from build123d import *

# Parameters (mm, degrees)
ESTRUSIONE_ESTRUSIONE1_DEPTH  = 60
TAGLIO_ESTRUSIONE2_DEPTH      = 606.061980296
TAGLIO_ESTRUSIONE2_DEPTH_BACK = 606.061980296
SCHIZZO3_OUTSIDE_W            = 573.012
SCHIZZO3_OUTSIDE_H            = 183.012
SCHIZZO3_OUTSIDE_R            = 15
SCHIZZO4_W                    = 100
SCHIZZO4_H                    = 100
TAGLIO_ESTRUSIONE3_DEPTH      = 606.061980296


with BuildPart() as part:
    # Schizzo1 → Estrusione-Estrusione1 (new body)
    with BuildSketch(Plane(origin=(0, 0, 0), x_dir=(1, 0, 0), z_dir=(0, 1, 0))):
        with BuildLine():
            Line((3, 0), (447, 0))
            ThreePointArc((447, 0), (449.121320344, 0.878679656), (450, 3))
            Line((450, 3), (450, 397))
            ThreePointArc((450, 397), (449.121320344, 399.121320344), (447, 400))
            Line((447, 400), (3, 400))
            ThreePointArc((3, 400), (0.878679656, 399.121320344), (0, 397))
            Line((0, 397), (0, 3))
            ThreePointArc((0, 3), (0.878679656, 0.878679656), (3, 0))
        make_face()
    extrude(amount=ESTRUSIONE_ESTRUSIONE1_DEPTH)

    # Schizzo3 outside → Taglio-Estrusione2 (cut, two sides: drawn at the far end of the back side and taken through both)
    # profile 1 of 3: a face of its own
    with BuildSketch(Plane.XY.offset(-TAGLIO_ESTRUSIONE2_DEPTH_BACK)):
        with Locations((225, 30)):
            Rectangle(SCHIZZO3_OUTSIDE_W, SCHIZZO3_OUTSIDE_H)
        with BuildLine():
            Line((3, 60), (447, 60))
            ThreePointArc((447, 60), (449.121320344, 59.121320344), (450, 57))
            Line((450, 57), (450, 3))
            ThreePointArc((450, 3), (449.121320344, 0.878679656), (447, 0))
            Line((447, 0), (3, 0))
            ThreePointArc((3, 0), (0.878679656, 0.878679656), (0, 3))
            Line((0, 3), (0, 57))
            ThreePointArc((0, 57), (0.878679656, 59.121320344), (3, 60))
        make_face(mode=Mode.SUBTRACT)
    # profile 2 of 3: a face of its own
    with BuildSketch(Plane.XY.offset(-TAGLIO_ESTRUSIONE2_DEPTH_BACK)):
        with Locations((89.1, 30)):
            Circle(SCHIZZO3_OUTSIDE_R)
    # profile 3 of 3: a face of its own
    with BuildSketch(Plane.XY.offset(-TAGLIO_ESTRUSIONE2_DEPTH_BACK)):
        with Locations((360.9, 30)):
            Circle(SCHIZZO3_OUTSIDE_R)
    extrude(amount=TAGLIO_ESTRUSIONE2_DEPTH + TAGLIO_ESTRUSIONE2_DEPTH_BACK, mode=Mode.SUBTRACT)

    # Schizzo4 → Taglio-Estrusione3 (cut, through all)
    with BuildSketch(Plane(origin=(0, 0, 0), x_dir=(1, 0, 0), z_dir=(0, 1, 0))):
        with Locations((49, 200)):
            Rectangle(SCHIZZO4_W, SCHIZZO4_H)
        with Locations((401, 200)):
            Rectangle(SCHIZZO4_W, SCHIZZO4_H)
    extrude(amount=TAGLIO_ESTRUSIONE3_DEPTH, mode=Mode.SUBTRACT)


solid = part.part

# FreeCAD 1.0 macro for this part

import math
import FreeCAD as App
import Part
import Sketcher


def add_polygon(sketch, points):
    """Adds a closed chain of lines whose ends are joined by coincident constraints."""
    first, n = sketch.GeometryCount, len(points)
    for a, b in zip(points, points[1:] + points[:1]):
        sketch.addGeometry(Part.LineSegment(App.Vector(*a, 0), App.Vector(*b, 0)), False)
    for i in range(n):
        sketch.addConstraint(Sketcher.Constraint("Coincident", first + i, 2, first + (i + 1) % n, 1))

doc = App.newDocument("Part")
params = doc.addObject("Spreadsheet::Sheet", "Params")
for row, (alias, value) in enumerate([
    ("sketch1_radius", "3 mm"),
    ("sketch1_width", "444 mm"),
    ("sketch1_height", "394 mm"),
    ("pad1_length", "60 mm"),
    ("sketch2_diameter", "30 mm"),
    ("sketch2_radius", "3 mm"),
    ("sketch2_width", "444 mm"),
    ("sketch2_height", "54 mm"),
    ("sketch3_width", "100 mm"),
], start=1):
    params.set(f"A{row}", alias)
    params.set(f"B{row}", "=" + value)
    params.setAlias(f"B{row}", alias)

body = doc.addObject("PartDesign::Body", "Body")

# Sketch on XZ plane
sketch1 = doc.addObject("Sketcher::SketchObject", "Sketch")
body.addObject(sketch1)
sketch1.AttachmentSupport = (doc.XZ_Plane, [""])
sketch1.MapMode = "FlatFace"
sketch1.addGeometry(Part.LineSegment(App.Vector(3, 0, 0), App.Vector(447, 0, 0)), False)
sketch1.addGeometry(Part.ArcOfCircle(Part.Circle(App.Vector(447, -3, 0), App.Vector(0, 0, 1), 3), math.radians(0), math.radians(90)), False)
sketch1.addGeometry(Part.LineSegment(App.Vector(450, -3, 0), App.Vector(450, -397, 0)), False)
sketch1.addGeometry(Part.ArcOfCircle(Part.Circle(App.Vector(447, -397, 0), App.Vector(0, 0, 1), 3), math.radians(-90), math.radians(0)), False)
sketch1.addGeometry(Part.LineSegment(App.Vector(447, -400, 0), App.Vector(3, -400, 0)), False)
sketch1.addGeometry(Part.ArcOfCircle(Part.Circle(App.Vector(3, -397, 0), App.Vector(0, 0, 1), 3), math.radians(180), math.radians(270)), False)
sketch1.addGeometry(Part.LineSegment(App.Vector(0, -397, 0), App.Vector(0, -3, 0)), False)
sketch1.addGeometry(Part.ArcOfCircle(Part.Circle(App.Vector(3, -3, 0), App.Vector(0, 0, 1), 3), math.radians(90), math.radians(180)), False)
sketch1.addConstraint(Sketcher.Constraint("Tangent", 0, 2, 1, 2))
sketch1.addConstraint(Sketcher.Constraint("Tangent", 1, 1, 2, 1))
sketch1.addConstraint(Sketcher.Constraint("Tangent", 2, 2, 3, 2))
sketch1.addConstraint(Sketcher.Constraint("Tangent", 3, 1, 4, 1))
sketch1.addConstraint(Sketcher.Constraint("Tangent", 4, 2, 5, 2))
sketch1.addConstraint(Sketcher.Constraint("Tangent", 5, 1, 6, 1))
sketch1.addConstraint(Sketcher.Constraint("Tangent", 6, 2, 7, 2))
sketch1.addConstraint(Sketcher.Constraint("Tangent", 7, 1, 0, 1))
sketch1.addConstraint(Sketcher.Constraint("Horizontal", 0))
sketch1.addConstraint(Sketcher.Constraint("Vertical", 2))
sketch1.addConstraint(Sketcher.Constraint("Horizontal", 4))
sketch1.addConstraint(Sketcher.Constraint("Vertical", 6))
sketch1.addConstraint(Sketcher.Constraint("Equal", 1, 3))
sketch1.addConstraint(Sketcher.Constraint("Equal", 3, 5))
sketch1.addConstraint(Sketcher.Constraint("Equal", 5, 7))
sketch1.addConstraint(Sketcher.Constraint("PointOnObject", 0, 2, -1))
sketch1.addConstraint(Sketcher.Constraint("PointOnObject", 5, 1, -2))
sketch1.addConstraint(Sketcher.Constraint("Radius", 1, 3.0))
sketch1.addConstraint(Sketcher.Constraint("DistanceX", 0, 1, 0, 2, 444.0))
sketch1.addConstraint(Sketcher.Constraint("DistanceY", 2, 2, 2, 1, 394.0))
sketch1.setExpression("Constraints[17]", "Params.sketch1_radius")
sketch1.setExpression("Constraints[18]", "Params.sketch1_width")
sketch1.setExpression("Constraints[19]", "Params.sketch1_height")
pad1 = doc.addObject("PartDesign::Pad", "Pad")
body.addObject(pad1)
pad1.Profile = sketch1
pad1.setExpression("Length", "Params.pad1_length")
pad1.Reversed = True

# Sketch on XY plane
sketch2 = doc.addObject("Sketcher::SketchObject", "Sketch001")
body.addObject(sketch2)
sketch2.AttachmentSupport = (doc.XY_Plane, [""])
sketch2.MapMode = "FlatFace"
add_polygon(sketch2, [(-61.5, 121.5), (-61.5, -61.5), (511.5, -61.5), (511.5, 121.5)])  # lines 0-3
sketch2.addGeometry(Part.ArcOfCircle(Part.Circle(App.Vector(3, 57, 0), App.Vector(0, 0, 1), 3), math.radians(90), math.radians(180)), False)  # 4
sketch2.addGeometry(Part.LineSegment(App.Vector(3, 60, 0), App.Vector(447, 60, 0)), False)  # 5
sketch2.addGeometry(Part.ArcOfCircle(Part.Circle(App.Vector(447, 57, 0), App.Vector(0, 0, 1), 3), math.radians(0), math.radians(90)), False)  # 6
sketch2.addGeometry(Part.LineSegment(App.Vector(450, 57, 0), App.Vector(450, 3, 0)), False)  # 7
sketch2.addGeometry(Part.ArcOfCircle(Part.Circle(App.Vector(447, 3, 0), App.Vector(0, 0, 1), 3), math.radians(-90), math.radians(0)), False)  # 8
sketch2.addGeometry(Part.LineSegment(App.Vector(447, 0, 0), App.Vector(3, 0, 0)), False)  # 9
sketch2.addGeometry(Part.ArcOfCircle(Part.Circle(App.Vector(3, 3, 0), App.Vector(0, 0, 1), 3), math.radians(180), math.radians(270)), False)  # 10
sketch2.addGeometry(Part.LineSegment(App.Vector(0, 3, 0), App.Vector(0, 57, 0)), False)  # 11
sketch2.addGeometry(Part.Circle(App.Vector(89.1, 30, 0), App.Vector(0, 0, 1), 15), False)  # 12
sketch2.addGeometry(Part.Circle(App.Vector(360.9, 30, 0), App.Vector(0, 0, 1), 15), False)  # 13
sketch2.addConstraint(Sketcher.Constraint("Tangent", 4, 1, 5, 1))
sketch2.addConstraint(Sketcher.Constraint("Tangent", 5, 2, 6, 2))
sketch2.addConstraint(Sketcher.Constraint("Tangent", 6, 1, 7, 1))
sketch2.addConstraint(Sketcher.Constraint("Tangent", 7, 2, 8, 2))
sketch2.addConstraint(Sketcher.Constraint("Tangent", 8, 1, 9, 1))
sketch2.addConstraint(Sketcher.Constraint("Tangent", 9, 2, 10, 2))
sketch2.addConstraint(Sketcher.Constraint("Tangent", 10, 1, 11, 1))
sketch2.addConstraint(Sketcher.Constraint("Tangent", 11, 2, 4, 2))
sketch2.addConstraint(Sketcher.Constraint("Vertical", 0))
sketch2.addConstraint(Sketcher.Constraint("Horizontal", 1))
sketch2.addConstraint(Sketcher.Constraint("Vertical", 2))
sketch2.addConstraint(Sketcher.Constraint("Horizontal", 3))
sketch2.addConstraint(Sketcher.Constraint("Horizontal", 5))
sketch2.addConstraint(Sketcher.Constraint("Vertical", 7))
sketch2.addConstraint(Sketcher.Constraint("Horizontal", 9))
sketch2.addConstraint(Sketcher.Constraint("Vertical", 11))
sketch2.addConstraint(Sketcher.Constraint("Equal", 4, 6))
sketch2.addConstraint(Sketcher.Constraint("Equal", 6, 8))
sketch2.addConstraint(Sketcher.Constraint("Equal", 8, 10))
sketch2.addConstraint(Sketcher.Constraint("Equal", 12, 13))
sketch2.addConstraint(Sketcher.Constraint("PointOnObject", 8, 1, -1))
sketch2.addConstraint(Sketcher.Constraint("PointOnObject", 10, 1, -2))
sketch2.addConstraint(Sketcher.Constraint("Horizontal", 12, 3, 13, 3))
sketch2.addConstraint(Sketcher.Constraint("Diameter", 12, 30.0))
sketch2.addConstraint(Sketcher.Constraint("Radius", 4, 3.0))
sketch2.addConstraint(Sketcher.Constraint("DistanceX", 5, 1, 5, 2, 444.0))
sketch2.addConstraint(Sketcher.Constraint("DistanceY", 7, 2, 7, 1, 54.0))
sketch2.addConstraint(Sketcher.Constraint("DistanceY", -1, 1, 12, 3, 30.0))
sketch2.addConstraint(Sketcher.Constraint("DistanceX", -1, 1, 12, 3, 89.1))
sketch2.addConstraint(Sketcher.Constraint("DistanceX", -1, 1, 13, 3, 360.9))
sketch2.addConstraint(Sketcher.Constraint("DistanceX", 1, 1, 1, 2, 573.012))
sketch2.addConstraint(Sketcher.Constraint("DistanceY", 0, 2, 0, 1, 183.012))
sketch2.addConstraint(Sketcher.Constraint("DistanceX", 0, 2, -1, 1, 61.506))
sketch2.addConstraint(Sketcher.Constraint("DistanceY", 0, 2, -1, 1, 61.506))
sketch2.setExpression("Constraints[27]", "Params.sketch2_diameter")
sketch2.setExpression("Constraints[28]", "Params.sketch2_radius")
sketch2.setExpression("Constraints[29]", "Params.sketch2_width")
sketch2.setExpression("Constraints[30]", "Params.sketch2_height")
pocket1 = doc.addObject("PartDesign::Pocket", "Pocket")
body.addObject(pocket1)
pocket1.Profile = sketch2
pocket1.Type = "ThroughAll"
pocket1.Midplane = True

# Sketch on XZ plane
sketch3 = doc.addObject("Sketcher::SketchObject", "Sketch002")
body.addObject(sketch3)
sketch3.AttachmentSupport = (doc.XZ_Plane, [""])
sketch3.MapMode = "FlatFace"
add_polygon(sketch3, [(-1, -250), (-1, -150), (99, -150), (99, -250)])  # lines 0-3
add_polygon(sketch3, [(351, -250), (351, -150), (451, -150), (451, -250)])  # lines 4-7
sketch3.addConstraint(Sketcher.Constraint("Vertical", 0))
sketch3.addConstraint(Sketcher.Constraint("Horizontal", 1))
sketch3.addConstraint(Sketcher.Constraint("Vertical", 2))
sketch3.addConstraint(Sketcher.Constraint("Horizontal", 3))
sketch3.addConstraint(Sketcher.Constraint("Vertical", 4))
sketch3.addConstraint(Sketcher.Constraint("Horizontal", 5))
sketch3.addConstraint(Sketcher.Constraint("Vertical", 6))
sketch3.addConstraint(Sketcher.Constraint("Horizontal", 7))
sketch3.addConstraint(Sketcher.Constraint("Horizontal", 1, 2, 4, 2))
sketch3.addConstraint(Sketcher.Constraint("Horizontal", 3, 2, 6, 2))
sketch3.addConstraint(Sketcher.Constraint("Equal", 3, 5))
sketch3.addConstraint(Sketcher.Constraint("Equal", 7, 0))
sketch3.addConstraint(Sketcher.Constraint("DistanceX", 1, 1, 1, 2, 100.0))
sketch3.addConstraint(Sketcher.Constraint("DistanceX", 0, 2, -1, 1, 1.0))
sketch3.addConstraint(Sketcher.Constraint("DistanceY", 0, 2, -1, 1, 150.0))
sketch3.addConstraint(Sketcher.Constraint("DistanceX", -1, 1, 4, 2, 351.0))
sketch3.setExpression("Constraints[20]", "Params.sketch3_width")
pocket2 = doc.addObject("PartDesign::Pocket", "Pocket001")
body.addObject(pocket2)
pocket2.Profile = sketch3
pocket2.Type = "ThroughAll"

doc.recompute()
